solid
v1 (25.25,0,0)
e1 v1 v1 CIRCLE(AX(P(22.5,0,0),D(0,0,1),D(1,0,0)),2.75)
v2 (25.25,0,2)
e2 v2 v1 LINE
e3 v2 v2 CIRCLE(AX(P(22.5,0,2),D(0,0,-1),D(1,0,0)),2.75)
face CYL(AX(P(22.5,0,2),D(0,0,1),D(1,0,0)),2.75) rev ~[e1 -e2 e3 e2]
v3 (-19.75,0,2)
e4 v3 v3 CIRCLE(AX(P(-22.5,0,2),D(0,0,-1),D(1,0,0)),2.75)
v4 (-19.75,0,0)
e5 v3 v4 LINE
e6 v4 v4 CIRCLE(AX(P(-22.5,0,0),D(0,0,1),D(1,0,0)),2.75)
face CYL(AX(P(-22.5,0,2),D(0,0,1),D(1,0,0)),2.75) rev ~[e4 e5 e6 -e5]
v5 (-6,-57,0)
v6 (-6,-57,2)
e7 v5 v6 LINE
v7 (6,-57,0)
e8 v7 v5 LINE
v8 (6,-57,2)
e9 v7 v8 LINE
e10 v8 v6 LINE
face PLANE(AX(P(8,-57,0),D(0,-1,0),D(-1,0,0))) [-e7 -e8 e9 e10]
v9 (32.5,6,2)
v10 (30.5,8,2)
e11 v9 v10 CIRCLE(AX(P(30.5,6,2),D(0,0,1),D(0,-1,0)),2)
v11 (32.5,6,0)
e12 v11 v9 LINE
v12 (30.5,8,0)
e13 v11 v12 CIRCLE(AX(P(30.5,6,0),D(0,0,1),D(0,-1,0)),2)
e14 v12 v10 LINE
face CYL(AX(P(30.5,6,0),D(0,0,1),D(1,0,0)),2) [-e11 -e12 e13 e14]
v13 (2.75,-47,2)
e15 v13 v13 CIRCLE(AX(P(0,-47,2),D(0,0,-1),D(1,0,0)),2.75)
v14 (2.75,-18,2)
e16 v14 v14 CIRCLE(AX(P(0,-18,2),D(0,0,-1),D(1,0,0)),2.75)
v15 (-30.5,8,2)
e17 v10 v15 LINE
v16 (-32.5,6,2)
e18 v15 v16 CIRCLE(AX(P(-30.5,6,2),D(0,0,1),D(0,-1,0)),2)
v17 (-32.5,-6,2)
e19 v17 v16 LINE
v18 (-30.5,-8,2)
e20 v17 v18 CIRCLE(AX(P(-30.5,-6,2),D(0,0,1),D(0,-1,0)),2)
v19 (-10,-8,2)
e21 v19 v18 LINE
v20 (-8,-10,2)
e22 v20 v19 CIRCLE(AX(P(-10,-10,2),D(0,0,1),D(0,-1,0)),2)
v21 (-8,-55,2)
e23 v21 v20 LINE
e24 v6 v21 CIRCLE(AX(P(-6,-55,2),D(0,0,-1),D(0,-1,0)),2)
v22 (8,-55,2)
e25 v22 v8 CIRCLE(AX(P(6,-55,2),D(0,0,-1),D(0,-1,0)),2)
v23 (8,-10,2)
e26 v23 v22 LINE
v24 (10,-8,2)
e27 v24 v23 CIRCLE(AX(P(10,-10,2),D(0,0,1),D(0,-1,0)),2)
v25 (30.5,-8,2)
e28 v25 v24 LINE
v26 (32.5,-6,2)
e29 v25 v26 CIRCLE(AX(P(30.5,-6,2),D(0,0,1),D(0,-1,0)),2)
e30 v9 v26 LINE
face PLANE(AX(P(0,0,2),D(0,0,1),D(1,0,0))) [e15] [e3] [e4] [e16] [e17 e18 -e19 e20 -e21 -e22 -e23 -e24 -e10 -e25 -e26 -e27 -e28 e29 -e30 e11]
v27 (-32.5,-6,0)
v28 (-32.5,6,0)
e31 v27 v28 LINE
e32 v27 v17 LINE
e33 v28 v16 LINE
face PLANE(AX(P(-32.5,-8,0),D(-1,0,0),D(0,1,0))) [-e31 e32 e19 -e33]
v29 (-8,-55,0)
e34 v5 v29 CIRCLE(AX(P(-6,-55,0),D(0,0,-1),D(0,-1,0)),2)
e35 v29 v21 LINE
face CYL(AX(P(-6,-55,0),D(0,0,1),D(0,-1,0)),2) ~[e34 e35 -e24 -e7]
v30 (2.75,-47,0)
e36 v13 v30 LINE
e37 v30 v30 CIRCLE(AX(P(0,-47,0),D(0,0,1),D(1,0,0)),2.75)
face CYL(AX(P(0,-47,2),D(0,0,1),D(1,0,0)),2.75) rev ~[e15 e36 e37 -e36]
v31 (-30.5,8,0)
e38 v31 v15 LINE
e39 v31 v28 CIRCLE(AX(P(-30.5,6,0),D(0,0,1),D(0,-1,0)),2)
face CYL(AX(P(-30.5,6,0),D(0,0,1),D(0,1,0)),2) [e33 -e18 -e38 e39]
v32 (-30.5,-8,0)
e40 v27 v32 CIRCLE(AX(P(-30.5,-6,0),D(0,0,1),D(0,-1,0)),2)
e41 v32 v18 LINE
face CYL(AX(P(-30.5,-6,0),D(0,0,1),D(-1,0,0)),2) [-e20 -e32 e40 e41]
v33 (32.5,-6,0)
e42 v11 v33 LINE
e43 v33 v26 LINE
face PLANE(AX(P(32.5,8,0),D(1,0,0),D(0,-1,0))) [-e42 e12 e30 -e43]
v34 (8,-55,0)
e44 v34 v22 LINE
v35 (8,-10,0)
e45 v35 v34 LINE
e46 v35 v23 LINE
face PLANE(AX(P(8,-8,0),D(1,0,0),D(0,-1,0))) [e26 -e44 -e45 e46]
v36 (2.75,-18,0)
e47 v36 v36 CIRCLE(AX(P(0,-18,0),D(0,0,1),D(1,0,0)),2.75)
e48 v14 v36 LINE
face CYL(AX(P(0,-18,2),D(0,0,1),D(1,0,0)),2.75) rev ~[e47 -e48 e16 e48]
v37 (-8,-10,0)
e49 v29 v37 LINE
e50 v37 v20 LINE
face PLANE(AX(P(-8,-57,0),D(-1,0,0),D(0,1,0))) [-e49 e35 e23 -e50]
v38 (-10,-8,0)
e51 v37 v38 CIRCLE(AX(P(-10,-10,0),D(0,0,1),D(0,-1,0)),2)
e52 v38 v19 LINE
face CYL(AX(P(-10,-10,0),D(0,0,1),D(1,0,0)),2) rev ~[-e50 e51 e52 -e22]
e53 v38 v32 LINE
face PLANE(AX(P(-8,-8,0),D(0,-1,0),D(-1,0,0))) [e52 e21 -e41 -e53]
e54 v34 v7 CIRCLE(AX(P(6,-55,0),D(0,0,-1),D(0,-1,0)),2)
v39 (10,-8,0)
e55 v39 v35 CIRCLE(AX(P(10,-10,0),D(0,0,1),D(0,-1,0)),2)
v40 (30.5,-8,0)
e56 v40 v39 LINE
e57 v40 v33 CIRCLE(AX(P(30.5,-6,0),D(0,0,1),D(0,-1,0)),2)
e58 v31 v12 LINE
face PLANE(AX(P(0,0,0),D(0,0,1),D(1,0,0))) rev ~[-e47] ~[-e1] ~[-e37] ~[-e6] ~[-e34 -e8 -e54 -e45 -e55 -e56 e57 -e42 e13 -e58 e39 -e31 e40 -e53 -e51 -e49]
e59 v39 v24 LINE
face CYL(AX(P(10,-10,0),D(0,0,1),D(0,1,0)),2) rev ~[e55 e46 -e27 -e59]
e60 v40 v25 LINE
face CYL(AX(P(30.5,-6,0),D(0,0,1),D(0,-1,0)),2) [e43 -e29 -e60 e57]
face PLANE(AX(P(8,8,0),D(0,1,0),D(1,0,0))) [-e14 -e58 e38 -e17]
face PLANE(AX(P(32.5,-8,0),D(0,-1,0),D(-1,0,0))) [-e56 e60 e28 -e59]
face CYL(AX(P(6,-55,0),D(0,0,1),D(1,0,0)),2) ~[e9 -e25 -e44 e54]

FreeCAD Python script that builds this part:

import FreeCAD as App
import Part
import Sketcher

V = App.Vector
Q = App.Units.Quantity


def edges_at(feature, points):
    """Names of the edges that pass closest to the given points."""
    edges = feature.Shape.Edges
    near = lambda p: min(range(len(edges)), key=lambda i: edges[i].distToShape(Part.Vertex(*p))[0])
    return sorted({f"Edge{near(p) + 1}" for p in points})


def add_polygon(sketch, points):
    """Adds a closed chain of lines whose ends are joined by coincident constraints."""
    first, n = sketch.GeometryCount, len(points)
    for a, b in zip(points, points[1:] + points[:1]):
        sketch.addGeometry(Part.LineSegment(App.Vector(*a, 0), App.Vector(*b, 0)), False)
    for i in range(n):
        sketch.addConstraint(Sketcher.Constraint("Coincident", first + i, 2, first + (i + 1) % n, 1))

doc = App.newDocument("Part")
body = doc.addObject("PartDesign::Body", "Body")

# Sketch on XY plane
sketch1 = doc.addObject("Sketcher::SketchObject", "Sketch")
body.addObject(sketch1)
sketch1.AttachmentSupport = (doc.XY_Plane, [""])
sketch1.MapMode = "FlatFace"
add_polygon(sketch1, [(8, -8), (32, -8), (32, 8), (-32, 8), (-32, -8), (-8, -8), (-8, -57), (8, -57)])  # lines 0-7
sketch1.addConstraint([
    Sketcher.Constraint("Horizontal", 0),
    Sketcher.Constraint("Vertical", 1),
    Sketcher.Constraint("Horizontal", 2),
    Sketcher.Constraint("Vertical", 3),
    Sketcher.Constraint("Horizontal", 4),
    Sketcher.Constraint("Vertical", 5),
    Sketcher.Constraint("Horizontal", 6),
    Sketcher.Constraint("Vertical", 7),
    Sketcher.Constraint("Symmetric", 0, 2, 2, 2, -1, 1),
    Sketcher.Constraint("Symmetric", 4, 2, 7, 2, -2),
    Sketcher.Constraint("Equal", 6, 1),
    Sketcher.Constraint("DistanceX", 2, 2, 2, 1, Q("65 mm")),
    Sketcher.Constraint("DistanceX", 6, 1, 6, 2, Q("16 mm")),
    Sketcher.Constraint("DistanceY", 5, 2, 5, 1, Q("49 mm")),
])
pad1 = doc.addObject("PartDesign::Pad", "Pad")
body.addObject(pad1)
pad1.Profile = sketch1
pad1.Length = 2

# Sketch on XY plane
sketch2 = doc.addObject("Sketcher::SketchObject", "Sketch001")
body.addObject(sketch2)
sketch2.AttachmentSupport = (doc.XY_Plane, [""])
sketch2.MapMode = "FlatFace"
sketch2.AttachmentOffset = App.Placement(V(0, 0, 2), App.Rotation())
sketch2.addGeometry([
    Part.Circle(V(-22.5, 0, 0), V(0, 0, 1), 2.8),
    Part.Circle(V(22.5, 0, 0), V(0, 0, 1), 2.8),
    Part.Circle(V(0, -47, 0), V(0, 0, 1), 2.8),
    Part.Circle(V(0, -18, 0), V(0, 0, 1), 2.8),
], False)
sketch2.addConstraint([
    Sketcher.Constraint("Equal", 0, 1),
    Sketcher.Constraint("Equal", 1, 2),
    Sketcher.Constraint("Equal", 2, 3),
    Sketcher.Constraint("Symmetric", 0, 3, 1, 3, -1, 1),
    Sketcher.Constraint("PointOnObject", 0, 3, -1),
    Sketcher.Constraint("PointOnObject", 2, 3, -2),
    Sketcher.Constraint("PointOnObject", 3, 3, -2),
    Sketcher.Constraint("Diameter", 0, Q("5.5 mm")),
    Sketcher.Constraint("DistanceY", 2, 3, 3, 3, Q("29 mm")),
    Sketcher.Constraint("DistanceX", 0, 3, -1, 1, Q("22.5 mm")),
    Sketcher.Constraint("DistanceY", 2, 3, -1, 1, Q("47 mm")),
])
pocket1 = doc.addObject("PartDesign::Pocket", "Pocket")
body.addObject(pocket1)
pocket1.Profile = sketch2
pocket1.Length = 10
doc.recompute()

fillet = doc.addObject("PartDesign::Fillet", "Fillet")
body.addObject(fillet)
fillet.Base = (pocket1, edges_at(pocket1, [
    (-8, -8, 1),
    (-32.5, -8, 1),
    (-32.5, 8, 1),
    (32.5, -8, 1),
    (-8, -57, 1),
    (8, -57, 1),
    (8, -8, 1),
    (32.5, 8, 1),
]))
fillet.Radius = 2

doc.recompute()
